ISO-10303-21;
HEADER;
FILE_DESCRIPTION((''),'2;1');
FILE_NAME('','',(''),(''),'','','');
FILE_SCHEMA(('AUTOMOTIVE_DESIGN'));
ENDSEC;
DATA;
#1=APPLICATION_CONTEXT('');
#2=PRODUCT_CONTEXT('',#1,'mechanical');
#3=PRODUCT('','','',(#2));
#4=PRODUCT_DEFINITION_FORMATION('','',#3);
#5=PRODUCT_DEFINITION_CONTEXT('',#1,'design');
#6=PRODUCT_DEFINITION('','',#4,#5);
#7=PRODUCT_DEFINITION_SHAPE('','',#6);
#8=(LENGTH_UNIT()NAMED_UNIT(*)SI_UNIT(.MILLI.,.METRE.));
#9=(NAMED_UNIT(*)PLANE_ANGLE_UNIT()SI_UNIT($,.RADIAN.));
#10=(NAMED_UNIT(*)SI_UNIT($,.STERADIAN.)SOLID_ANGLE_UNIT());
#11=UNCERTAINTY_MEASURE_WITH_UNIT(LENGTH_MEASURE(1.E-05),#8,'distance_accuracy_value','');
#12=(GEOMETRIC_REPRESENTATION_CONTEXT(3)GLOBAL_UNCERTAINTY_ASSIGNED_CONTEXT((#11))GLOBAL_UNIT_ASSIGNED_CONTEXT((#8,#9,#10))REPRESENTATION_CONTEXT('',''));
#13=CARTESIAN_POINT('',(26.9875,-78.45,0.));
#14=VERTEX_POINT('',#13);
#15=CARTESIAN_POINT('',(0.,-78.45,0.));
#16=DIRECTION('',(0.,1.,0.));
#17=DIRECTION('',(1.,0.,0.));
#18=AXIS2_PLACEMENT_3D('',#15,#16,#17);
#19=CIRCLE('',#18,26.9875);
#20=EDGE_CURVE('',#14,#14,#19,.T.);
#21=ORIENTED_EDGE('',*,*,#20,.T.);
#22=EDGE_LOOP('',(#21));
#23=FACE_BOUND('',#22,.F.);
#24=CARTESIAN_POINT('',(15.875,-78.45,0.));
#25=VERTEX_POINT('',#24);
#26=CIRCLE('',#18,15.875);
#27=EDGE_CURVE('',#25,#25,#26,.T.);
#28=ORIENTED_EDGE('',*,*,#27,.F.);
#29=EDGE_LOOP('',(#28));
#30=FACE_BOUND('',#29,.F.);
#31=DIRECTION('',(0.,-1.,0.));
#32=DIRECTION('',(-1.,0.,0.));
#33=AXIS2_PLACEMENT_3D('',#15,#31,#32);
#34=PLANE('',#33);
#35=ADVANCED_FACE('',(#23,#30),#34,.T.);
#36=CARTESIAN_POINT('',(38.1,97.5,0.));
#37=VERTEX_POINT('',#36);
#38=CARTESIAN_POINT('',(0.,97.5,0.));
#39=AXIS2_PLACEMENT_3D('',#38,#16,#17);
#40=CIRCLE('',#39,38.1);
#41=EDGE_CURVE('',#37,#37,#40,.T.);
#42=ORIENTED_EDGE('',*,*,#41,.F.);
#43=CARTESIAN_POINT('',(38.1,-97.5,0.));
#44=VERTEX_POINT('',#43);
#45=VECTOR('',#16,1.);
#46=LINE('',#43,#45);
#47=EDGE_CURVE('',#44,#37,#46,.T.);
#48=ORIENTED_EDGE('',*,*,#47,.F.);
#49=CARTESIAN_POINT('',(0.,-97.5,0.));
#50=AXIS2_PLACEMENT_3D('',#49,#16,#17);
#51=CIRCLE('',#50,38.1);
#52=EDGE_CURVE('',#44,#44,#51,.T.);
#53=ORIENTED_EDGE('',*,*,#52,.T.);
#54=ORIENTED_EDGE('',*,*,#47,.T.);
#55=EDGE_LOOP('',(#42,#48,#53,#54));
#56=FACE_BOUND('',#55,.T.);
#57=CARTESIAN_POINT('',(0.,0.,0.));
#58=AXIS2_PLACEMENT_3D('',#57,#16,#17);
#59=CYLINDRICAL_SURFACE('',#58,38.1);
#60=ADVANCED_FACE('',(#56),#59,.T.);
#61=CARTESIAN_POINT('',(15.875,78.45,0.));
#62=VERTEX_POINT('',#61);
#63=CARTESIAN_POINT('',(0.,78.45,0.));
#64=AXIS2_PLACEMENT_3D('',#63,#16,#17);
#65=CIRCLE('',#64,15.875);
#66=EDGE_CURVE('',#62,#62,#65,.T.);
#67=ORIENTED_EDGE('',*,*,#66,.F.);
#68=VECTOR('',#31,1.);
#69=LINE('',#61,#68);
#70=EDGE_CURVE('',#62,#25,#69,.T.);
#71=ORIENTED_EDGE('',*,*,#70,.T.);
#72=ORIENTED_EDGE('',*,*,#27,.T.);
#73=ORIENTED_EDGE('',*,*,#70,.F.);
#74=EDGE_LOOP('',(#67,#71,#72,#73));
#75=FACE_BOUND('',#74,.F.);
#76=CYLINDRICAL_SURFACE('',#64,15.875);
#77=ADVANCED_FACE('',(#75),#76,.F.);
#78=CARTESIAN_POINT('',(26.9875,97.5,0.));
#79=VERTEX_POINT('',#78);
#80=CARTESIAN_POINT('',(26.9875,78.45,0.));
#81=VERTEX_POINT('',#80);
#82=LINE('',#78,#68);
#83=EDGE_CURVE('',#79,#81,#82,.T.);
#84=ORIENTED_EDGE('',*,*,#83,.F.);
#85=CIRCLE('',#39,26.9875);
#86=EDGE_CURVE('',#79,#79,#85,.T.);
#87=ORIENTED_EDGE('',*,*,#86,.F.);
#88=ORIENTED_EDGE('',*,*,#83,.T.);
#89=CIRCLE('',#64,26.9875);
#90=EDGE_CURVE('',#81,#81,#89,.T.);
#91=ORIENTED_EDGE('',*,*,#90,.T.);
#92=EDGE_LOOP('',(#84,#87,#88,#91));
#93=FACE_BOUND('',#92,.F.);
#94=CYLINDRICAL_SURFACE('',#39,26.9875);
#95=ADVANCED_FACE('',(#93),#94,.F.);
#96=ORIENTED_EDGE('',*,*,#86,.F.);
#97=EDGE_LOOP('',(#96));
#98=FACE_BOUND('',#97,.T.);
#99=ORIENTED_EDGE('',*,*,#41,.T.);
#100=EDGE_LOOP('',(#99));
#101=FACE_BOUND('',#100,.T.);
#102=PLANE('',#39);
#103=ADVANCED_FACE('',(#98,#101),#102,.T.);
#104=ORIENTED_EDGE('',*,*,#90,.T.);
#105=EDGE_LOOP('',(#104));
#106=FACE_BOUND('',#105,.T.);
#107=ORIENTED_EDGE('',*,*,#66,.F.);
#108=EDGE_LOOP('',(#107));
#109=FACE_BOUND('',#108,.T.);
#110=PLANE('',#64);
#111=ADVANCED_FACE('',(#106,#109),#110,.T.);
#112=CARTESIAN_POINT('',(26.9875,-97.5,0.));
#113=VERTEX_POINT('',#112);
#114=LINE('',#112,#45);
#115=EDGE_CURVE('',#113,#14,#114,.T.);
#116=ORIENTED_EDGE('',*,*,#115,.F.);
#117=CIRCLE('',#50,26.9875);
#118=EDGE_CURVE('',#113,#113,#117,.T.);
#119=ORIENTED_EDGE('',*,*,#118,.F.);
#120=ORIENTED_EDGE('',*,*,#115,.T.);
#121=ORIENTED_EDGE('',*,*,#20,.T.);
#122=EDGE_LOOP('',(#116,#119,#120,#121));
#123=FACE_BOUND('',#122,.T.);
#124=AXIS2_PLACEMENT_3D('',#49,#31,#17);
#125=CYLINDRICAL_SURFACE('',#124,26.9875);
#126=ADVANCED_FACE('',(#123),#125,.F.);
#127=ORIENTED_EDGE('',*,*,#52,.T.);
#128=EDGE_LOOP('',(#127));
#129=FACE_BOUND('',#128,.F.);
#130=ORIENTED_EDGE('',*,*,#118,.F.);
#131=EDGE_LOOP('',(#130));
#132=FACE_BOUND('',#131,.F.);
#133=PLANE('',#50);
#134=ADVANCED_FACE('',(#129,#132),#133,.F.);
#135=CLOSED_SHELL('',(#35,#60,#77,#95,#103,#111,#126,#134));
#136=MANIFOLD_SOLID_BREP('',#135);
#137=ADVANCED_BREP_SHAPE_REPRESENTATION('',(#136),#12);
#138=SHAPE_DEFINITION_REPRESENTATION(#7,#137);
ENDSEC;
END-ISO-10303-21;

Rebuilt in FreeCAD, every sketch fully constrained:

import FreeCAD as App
import Part
import Sketcher

V = App.Vector
Q = App.Units.Quantity

doc = App.newDocument("Part")
body = doc.addObject("PartDesign::Body", "Body")

# Sketch on XZ plane
sketch1 = doc.addObject("Sketcher::SketchObject", "Sketch")
body.addObject(sketch1)
sketch1.AttachmentSupport = (doc.XZ_Plane, [""])
sketch1.MapMode = "FlatFace"
sketch1.addGeometry(Part.Circle(V(0, 0, 0), V(0, 0, 1), 38.1), False)
sketch1.addConstraint([
    Sketcher.Constraint("Coincident", 0, 3, -1, 1),
    Sketcher.Constraint("Diameter", 0, Q("3 in")),
])
pad1 = doc.addObject("PartDesign::Pad", "Pad")
body.addObject(pad1)
pad1.Profile = sketch1
pad1.Type = "TwoLengths"
pad1.Length = 97.5
pad1.Length2 = 97.5
pad1.Reversed = True

# Sketch on XZ plane
sketch2 = doc.addObject("Sketcher::SketchObject", "Sketch001")
body.addObject(sketch2)
sketch2.AttachmentSupport = (doc.XZ_Plane, [""])
sketch2.MapMode = "FlatFace"
sketch2.AttachmentOffset = App.Placement(V(0, 0, -97.5), App.Rotation())
sketch2.addGeometry(Part.Circle(V(0, 0, 0), V(0, 0, 1), 26.9875), False)
sketch2.addConstraint([
    Sketcher.Constraint("Coincident", 0, 3, -1, 1),
    Sketcher.Constraint("Diameter", 0, Q("2.125 in")),
])
pocket1 = doc.addObject("PartDesign::Pocket", "Pocket")
body.addObject(pocket1)
pocket1.Profile = sketch2
pocket1.Length = Q("0.75 in")
pocket1.Reversed = True
doc.recompute()

mirrored = doc.addObject("PartDesign::Mirrored", "Mirrored")
body.addObject(mirrored)
mirrored.Originals = [pocket1]
mirrored.MirrorPlane = (doc.XZ_Plane, [""])
body.Tip = mirrored

# Sketch on XZ plane
sketch3 = doc.addObject("Sketcher::SketchObject", "Sketch002")
body.addObject(sketch3)
sketch3.AttachmentSupport = (doc.XZ_Plane, [""])
sketch3.MapMode = "FlatFace"
sketch3.AttachmentOffset = App.Placement(V(0, 0, -78.45), App.Rotation())
sketch3.addGeometry(Part.Circle(V(0, 0, 0), V(0, 0, 1), 15.875), False)
sketch3.addConstraint([
    Sketcher.Constraint("Coincident", 0, 3, -1, 1),
    Sketcher.Constraint("Diameter", 0, Q("1.25 in")),
])
pocket2 = doc.addObject("PartDesign::Pocket", "Pocket001")
body.addObject(pocket2)
pocket2.Profile = sketch3
pocket2.Type = "ThroughAll"
pocket2.Reversed = True

doc.recompute()
